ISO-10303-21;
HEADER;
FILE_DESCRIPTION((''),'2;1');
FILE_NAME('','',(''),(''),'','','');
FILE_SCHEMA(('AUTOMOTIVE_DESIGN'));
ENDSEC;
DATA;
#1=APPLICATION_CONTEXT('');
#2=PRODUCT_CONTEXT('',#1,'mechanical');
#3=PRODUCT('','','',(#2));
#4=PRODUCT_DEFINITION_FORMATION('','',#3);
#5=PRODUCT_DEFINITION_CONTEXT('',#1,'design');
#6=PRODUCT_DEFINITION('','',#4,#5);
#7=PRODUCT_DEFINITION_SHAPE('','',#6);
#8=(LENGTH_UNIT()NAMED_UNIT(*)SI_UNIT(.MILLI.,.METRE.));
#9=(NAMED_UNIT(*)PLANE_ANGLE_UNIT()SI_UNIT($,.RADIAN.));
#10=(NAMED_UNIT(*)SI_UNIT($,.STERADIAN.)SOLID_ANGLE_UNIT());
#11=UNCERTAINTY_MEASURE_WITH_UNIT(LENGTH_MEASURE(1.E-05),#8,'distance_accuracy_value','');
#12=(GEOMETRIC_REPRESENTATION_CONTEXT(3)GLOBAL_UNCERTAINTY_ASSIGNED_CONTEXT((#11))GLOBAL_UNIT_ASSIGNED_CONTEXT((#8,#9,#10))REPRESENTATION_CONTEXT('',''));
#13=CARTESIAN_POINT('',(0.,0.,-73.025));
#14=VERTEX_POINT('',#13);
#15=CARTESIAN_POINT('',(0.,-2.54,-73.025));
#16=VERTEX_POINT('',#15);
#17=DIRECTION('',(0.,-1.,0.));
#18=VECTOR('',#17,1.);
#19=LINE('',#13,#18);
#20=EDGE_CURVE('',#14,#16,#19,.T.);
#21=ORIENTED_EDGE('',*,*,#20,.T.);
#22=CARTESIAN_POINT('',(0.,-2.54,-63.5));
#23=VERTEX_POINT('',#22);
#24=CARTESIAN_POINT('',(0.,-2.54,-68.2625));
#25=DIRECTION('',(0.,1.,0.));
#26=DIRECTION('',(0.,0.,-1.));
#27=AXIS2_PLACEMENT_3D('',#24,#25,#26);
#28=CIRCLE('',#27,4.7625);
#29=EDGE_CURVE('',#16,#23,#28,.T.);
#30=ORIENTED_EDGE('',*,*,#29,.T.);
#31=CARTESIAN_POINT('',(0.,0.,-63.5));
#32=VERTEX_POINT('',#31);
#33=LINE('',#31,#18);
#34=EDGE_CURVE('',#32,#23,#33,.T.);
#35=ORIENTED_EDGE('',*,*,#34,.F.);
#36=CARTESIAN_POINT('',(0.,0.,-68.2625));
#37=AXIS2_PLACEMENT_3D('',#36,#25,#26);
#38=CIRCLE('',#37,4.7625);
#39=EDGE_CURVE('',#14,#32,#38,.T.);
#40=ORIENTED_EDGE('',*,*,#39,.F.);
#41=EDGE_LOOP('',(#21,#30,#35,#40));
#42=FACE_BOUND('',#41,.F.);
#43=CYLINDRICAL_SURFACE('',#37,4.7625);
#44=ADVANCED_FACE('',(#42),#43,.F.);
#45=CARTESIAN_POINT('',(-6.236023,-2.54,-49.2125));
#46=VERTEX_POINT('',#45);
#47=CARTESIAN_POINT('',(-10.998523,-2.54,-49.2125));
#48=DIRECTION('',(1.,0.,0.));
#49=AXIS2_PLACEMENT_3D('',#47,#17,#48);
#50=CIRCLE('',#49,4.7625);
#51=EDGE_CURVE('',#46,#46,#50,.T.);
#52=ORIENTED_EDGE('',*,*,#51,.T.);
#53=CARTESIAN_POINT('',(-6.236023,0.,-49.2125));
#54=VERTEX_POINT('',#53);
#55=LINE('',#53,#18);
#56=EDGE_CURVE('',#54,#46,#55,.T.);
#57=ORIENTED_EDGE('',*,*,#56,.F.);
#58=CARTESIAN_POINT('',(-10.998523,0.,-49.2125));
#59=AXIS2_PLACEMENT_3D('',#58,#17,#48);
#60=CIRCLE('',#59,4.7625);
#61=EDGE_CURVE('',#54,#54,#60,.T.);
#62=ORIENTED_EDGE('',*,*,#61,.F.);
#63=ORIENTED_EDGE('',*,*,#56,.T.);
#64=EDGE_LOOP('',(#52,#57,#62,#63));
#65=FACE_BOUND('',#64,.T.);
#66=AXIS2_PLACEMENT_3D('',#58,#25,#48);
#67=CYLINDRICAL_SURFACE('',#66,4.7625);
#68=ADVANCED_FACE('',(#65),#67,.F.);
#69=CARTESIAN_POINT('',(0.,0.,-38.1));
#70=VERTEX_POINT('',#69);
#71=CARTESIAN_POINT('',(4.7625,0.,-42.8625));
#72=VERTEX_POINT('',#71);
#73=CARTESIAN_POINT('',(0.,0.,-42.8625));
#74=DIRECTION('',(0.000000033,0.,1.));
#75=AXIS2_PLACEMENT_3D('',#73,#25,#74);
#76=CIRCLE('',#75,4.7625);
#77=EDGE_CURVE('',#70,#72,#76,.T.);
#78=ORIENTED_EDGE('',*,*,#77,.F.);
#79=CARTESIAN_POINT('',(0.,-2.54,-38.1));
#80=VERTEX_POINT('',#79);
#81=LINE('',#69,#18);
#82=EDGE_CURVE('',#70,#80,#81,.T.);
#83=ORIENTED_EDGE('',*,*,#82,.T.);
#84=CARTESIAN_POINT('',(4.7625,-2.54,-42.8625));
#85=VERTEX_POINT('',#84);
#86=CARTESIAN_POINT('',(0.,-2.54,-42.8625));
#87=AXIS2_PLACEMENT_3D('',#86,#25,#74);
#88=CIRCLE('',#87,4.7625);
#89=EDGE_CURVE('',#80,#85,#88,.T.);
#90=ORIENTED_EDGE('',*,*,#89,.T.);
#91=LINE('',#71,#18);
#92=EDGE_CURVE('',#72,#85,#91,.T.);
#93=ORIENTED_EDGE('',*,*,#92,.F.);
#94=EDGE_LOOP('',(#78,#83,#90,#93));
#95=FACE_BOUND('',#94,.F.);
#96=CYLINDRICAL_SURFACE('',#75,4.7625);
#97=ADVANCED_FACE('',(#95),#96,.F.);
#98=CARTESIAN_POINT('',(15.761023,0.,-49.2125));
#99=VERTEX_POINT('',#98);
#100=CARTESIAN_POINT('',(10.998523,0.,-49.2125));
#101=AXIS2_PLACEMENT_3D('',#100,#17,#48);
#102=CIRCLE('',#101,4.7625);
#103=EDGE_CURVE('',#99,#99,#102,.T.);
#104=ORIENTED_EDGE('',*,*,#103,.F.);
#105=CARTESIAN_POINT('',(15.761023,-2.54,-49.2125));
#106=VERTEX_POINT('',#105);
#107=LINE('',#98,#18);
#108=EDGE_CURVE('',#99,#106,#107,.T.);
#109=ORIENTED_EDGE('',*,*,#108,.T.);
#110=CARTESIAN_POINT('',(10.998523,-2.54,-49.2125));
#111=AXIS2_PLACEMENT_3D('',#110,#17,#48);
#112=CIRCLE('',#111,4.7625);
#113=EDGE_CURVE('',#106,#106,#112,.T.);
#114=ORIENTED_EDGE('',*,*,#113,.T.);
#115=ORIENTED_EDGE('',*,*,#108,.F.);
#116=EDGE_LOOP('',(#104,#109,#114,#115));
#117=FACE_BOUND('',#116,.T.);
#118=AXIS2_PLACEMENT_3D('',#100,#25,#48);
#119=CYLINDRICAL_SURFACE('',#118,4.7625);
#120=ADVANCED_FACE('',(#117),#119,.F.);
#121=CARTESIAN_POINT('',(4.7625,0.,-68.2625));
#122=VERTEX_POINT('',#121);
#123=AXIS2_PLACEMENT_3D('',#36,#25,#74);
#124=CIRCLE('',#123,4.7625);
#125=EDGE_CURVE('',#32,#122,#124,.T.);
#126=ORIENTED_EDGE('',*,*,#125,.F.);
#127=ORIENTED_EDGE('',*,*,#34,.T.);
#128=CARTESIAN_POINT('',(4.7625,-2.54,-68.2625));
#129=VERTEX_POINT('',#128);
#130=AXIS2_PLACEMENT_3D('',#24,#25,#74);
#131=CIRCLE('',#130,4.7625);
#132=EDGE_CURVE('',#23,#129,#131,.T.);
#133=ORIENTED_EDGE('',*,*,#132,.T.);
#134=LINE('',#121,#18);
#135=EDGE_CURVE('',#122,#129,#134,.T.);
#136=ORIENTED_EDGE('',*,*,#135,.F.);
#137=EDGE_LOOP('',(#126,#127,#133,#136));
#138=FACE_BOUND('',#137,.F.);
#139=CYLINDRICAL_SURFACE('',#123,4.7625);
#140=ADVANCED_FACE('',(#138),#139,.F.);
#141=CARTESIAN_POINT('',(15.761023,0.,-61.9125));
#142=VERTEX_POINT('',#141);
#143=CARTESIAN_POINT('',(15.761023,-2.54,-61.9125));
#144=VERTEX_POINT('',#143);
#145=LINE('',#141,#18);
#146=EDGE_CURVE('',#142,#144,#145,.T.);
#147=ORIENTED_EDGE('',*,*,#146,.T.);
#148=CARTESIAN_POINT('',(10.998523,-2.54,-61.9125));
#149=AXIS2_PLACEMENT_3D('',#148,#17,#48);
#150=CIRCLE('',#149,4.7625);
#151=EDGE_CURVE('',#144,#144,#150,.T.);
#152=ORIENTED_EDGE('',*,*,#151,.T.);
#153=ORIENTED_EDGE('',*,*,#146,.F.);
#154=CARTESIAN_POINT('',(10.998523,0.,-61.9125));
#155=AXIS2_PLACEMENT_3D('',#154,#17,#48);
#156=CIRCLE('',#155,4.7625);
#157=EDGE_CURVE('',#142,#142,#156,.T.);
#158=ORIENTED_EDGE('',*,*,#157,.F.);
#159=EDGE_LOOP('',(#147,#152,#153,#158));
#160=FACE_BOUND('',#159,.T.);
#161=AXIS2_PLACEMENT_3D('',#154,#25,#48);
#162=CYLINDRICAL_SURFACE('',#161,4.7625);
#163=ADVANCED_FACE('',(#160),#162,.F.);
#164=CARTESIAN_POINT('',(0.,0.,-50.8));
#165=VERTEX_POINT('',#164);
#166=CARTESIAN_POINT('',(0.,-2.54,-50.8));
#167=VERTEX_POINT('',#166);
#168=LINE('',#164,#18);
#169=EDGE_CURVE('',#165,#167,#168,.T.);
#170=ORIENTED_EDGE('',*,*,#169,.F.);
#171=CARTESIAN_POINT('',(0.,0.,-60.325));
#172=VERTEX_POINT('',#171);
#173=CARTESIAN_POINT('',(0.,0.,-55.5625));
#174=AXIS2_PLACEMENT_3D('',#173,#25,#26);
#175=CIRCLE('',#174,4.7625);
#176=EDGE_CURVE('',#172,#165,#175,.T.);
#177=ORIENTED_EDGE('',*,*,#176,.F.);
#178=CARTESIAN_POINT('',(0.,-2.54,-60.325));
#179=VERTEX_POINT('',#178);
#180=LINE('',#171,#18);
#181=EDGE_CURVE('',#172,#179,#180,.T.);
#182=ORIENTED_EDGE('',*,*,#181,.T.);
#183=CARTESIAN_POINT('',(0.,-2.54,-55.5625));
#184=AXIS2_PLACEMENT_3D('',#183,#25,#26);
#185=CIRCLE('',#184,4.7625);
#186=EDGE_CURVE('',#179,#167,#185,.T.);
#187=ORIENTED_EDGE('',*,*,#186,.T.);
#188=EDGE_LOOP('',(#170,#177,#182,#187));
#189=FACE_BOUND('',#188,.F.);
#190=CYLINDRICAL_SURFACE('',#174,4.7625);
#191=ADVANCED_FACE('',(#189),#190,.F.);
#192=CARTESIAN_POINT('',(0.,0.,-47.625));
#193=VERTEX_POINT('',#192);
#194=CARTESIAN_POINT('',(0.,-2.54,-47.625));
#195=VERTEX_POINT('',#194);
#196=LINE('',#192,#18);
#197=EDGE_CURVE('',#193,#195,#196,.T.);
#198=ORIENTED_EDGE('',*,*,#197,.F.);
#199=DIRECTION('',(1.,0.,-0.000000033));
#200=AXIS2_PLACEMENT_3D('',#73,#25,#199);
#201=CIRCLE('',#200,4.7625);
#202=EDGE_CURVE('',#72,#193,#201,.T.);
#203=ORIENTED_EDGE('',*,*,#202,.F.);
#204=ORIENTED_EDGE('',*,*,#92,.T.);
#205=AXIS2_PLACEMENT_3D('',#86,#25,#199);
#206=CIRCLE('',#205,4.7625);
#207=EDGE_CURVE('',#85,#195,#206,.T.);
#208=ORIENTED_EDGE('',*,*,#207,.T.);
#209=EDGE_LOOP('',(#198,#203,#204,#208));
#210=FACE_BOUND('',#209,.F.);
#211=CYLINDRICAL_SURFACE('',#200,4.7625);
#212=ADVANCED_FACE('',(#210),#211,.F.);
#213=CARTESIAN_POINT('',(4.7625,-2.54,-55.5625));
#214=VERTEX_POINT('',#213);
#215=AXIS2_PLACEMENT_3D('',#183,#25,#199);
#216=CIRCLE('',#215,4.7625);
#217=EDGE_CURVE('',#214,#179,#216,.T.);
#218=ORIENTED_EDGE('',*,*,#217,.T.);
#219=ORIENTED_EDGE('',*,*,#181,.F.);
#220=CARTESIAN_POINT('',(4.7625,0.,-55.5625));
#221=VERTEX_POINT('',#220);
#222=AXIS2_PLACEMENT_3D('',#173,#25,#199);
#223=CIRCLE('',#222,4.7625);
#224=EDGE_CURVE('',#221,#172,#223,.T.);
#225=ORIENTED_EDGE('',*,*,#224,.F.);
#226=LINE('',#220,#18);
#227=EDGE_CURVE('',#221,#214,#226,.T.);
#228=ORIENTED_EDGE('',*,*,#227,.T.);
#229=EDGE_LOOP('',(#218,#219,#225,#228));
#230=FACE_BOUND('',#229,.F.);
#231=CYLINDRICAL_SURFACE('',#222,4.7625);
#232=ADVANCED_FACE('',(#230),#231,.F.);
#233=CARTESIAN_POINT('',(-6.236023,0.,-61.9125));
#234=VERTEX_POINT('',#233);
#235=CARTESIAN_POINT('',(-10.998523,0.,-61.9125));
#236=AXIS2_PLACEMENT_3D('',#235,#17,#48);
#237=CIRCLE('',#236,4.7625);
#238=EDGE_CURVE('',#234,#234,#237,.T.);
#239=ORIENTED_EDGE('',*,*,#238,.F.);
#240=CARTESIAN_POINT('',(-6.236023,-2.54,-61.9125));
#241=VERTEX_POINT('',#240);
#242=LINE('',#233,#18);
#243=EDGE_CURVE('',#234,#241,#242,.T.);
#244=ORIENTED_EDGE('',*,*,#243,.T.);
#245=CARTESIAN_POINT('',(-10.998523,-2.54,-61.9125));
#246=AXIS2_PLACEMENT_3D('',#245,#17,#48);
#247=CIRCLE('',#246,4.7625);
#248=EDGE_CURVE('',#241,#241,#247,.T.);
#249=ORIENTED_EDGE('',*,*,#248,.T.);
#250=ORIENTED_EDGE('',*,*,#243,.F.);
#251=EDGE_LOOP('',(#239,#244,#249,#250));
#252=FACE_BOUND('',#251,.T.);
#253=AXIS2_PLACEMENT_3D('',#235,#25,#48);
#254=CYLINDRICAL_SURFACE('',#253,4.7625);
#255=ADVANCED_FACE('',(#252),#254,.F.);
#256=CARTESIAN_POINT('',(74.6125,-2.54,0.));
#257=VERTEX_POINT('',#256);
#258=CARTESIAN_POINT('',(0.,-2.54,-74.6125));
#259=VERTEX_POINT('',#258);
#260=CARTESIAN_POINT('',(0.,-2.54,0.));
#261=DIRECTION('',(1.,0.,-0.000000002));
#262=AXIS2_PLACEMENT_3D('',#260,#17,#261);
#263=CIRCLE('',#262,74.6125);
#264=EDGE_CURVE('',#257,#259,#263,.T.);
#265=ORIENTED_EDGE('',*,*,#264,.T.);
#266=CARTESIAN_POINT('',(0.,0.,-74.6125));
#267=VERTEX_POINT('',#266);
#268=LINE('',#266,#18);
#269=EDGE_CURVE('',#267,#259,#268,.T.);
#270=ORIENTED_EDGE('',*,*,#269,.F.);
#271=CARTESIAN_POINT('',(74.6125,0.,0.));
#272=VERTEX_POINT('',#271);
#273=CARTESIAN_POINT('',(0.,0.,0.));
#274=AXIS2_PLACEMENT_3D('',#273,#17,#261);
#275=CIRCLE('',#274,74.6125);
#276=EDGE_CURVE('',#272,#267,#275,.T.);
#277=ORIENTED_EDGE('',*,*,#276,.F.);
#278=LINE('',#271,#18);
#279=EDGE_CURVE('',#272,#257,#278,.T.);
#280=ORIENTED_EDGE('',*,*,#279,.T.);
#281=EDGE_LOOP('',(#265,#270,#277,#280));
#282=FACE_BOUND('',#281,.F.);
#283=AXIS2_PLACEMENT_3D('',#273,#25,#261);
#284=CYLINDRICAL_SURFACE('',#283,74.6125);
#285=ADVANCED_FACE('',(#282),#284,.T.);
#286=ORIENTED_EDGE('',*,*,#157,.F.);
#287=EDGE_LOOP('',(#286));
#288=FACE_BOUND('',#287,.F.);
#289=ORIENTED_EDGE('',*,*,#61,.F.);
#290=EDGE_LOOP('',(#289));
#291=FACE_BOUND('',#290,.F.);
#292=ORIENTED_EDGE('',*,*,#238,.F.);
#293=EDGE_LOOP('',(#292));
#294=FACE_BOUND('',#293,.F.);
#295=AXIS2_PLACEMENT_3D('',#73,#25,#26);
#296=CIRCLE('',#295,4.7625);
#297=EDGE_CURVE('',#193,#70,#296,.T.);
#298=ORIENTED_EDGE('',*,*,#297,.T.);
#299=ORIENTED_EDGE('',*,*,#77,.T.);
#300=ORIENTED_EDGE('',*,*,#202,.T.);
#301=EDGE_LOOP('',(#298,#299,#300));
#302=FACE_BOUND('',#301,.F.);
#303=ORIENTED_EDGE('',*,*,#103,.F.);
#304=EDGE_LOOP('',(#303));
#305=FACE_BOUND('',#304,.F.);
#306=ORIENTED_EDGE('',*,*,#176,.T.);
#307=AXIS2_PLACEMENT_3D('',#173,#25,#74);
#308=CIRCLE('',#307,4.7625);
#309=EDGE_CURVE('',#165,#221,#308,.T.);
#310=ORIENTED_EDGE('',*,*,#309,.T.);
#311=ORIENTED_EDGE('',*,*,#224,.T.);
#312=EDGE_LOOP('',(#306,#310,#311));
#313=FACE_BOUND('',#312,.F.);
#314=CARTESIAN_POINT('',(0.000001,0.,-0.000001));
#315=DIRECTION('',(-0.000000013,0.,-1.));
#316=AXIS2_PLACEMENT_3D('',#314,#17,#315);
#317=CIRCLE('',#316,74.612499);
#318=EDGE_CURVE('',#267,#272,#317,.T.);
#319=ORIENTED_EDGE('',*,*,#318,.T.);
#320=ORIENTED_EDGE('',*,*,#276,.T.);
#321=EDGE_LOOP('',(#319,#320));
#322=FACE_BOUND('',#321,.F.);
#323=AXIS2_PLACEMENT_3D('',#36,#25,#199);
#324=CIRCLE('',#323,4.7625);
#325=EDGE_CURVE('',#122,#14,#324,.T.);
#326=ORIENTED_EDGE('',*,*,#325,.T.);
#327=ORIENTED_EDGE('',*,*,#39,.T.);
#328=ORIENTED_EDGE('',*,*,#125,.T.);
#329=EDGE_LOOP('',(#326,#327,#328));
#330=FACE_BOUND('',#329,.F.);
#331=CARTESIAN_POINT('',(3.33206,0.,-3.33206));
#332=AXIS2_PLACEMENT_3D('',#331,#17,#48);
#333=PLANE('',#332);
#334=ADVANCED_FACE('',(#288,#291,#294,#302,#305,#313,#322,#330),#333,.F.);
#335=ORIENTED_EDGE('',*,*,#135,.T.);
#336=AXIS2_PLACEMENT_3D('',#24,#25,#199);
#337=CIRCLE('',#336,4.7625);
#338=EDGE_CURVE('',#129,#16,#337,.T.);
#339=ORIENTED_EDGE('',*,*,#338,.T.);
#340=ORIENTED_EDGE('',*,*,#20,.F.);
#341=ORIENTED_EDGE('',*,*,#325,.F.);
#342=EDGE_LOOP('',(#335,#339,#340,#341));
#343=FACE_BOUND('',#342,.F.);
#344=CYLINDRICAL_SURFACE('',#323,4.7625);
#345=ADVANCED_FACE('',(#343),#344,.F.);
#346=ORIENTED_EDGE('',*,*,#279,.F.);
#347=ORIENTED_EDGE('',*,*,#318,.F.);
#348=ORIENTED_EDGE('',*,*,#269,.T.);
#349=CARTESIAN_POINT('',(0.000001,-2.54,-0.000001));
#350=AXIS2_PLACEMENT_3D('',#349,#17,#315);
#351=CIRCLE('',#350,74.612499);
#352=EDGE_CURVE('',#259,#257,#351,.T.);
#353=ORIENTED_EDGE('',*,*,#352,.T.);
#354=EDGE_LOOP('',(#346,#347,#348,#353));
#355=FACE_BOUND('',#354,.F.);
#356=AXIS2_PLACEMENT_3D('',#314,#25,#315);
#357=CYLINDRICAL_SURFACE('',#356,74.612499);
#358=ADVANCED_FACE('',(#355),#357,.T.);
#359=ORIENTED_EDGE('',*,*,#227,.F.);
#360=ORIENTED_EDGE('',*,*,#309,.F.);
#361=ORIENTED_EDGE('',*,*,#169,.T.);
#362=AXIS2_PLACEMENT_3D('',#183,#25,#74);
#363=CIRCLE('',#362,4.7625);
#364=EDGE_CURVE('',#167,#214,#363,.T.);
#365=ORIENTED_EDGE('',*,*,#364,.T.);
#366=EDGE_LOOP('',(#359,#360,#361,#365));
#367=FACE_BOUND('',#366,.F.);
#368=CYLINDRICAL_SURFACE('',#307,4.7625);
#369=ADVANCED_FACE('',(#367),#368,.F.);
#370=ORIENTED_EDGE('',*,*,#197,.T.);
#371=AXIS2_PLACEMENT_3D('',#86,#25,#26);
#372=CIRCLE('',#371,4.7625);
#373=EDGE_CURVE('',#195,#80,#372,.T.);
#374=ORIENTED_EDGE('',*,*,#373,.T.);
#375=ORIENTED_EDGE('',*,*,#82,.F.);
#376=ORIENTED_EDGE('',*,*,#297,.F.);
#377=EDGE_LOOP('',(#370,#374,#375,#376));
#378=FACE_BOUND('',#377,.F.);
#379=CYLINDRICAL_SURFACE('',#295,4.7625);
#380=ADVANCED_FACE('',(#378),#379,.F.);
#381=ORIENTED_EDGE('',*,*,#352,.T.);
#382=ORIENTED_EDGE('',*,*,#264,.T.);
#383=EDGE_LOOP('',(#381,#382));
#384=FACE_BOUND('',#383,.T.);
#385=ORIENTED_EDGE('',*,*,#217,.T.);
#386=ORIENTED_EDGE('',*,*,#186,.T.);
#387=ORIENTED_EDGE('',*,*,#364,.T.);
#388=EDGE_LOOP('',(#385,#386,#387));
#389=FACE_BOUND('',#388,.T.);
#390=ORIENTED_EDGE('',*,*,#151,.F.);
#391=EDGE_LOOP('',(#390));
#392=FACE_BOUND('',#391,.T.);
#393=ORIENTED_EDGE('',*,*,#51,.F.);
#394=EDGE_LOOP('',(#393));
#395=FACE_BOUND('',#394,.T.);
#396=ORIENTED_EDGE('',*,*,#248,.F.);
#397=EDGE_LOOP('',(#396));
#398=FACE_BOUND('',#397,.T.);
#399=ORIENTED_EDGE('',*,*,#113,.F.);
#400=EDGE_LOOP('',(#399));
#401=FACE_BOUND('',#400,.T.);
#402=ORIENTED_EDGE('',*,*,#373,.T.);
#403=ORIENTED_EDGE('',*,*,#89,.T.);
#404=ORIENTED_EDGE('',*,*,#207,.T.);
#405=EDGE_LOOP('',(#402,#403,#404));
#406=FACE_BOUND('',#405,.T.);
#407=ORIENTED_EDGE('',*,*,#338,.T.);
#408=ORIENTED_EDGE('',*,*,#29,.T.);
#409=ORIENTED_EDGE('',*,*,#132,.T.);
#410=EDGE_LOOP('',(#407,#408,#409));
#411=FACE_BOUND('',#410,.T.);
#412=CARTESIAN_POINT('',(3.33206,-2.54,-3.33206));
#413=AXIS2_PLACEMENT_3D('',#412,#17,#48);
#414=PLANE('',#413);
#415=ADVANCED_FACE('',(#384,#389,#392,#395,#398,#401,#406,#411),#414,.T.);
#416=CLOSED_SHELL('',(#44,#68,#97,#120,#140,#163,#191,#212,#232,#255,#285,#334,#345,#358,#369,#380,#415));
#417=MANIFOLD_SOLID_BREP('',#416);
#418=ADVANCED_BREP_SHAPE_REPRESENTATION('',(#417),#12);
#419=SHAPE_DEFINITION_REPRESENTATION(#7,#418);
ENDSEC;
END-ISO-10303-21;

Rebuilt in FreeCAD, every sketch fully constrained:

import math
import FreeCAD as App
import Part
import Sketcher
Q = App.Units.Quantity

doc = App.newDocument("Part")
body = doc.addObject("PartDesign::Body", "Body")

# Sketch on XZ plane
sketch1 = body.newObject("Sketcher::SketchObject", "Sketch")
sketch1.AttachmentSupport = (doc.getObject("XZ_Plane"), [""])
sketch1.MapMode = "FlatFace"
sketch1.addGeometry([
    Part.ArcOfCircle(Part.Circle(App.Vector(0, 0, 0), App.Vector(0, 0, 1), 74.6), math.radians(-90), math.radians(0)),  # 0
    Part.ArcOfCircle(Part.Circle(App.Vector(0, 0, 0), App.Vector(0, 0, 1), 74.6), math.radians(0), math.radians(270)),  # 1
    Part.Circle(App.Vector(-11, -61.9, 0), App.Vector(0, 0, 1), 4.8),  # 2
    Part.ArcOfCircle(Part.Circle(App.Vector(0, -68.3, 0), App.Vector(0, 0, 1), 4.8), math.radians(0), math.radians(90)),  # 3
    Part.ArcOfCircle(Part.Circle(App.Vector(0, -68.3, 0), App.Vector(0, 0, 1), 4.8), math.radians(-90), math.radians(0)),  # 4
    Part.ArcOfCircle(Part.Circle(App.Vector(0, -68.3, 0), App.Vector(0, 0, 1), 4.8), math.radians(90), math.radians(270)),  # 5
    Part.Circle(App.Vector(11, -61.9, 0), App.Vector(0, 0, 1), 4.8),  # 6
    Part.Circle(App.Vector(-11, -49.2, 0), App.Vector(0, 0, 1), 4.8),  # 7
    Part.ArcOfCircle(Part.Circle(App.Vector(0, -55.6, 0), App.Vector(0, 0, 1), 4.8), math.radians(0), math.radians(90)),  # 8
    Part.ArcOfCircle(Part.Circle(App.Vector(0, -55.6, 0), App.Vector(0, 0, 1), 4.8), math.radians(-90), math.radians(0)),  # 9
    Part.ArcOfCircle(Part.Circle(App.Vector(0, -55.6, 0), App.Vector(0, 0, 1), 4.8), math.radians(90), math.radians(270)),  # 10
    Part.Circle(App.Vector(11, -49.2, 0), App.Vector(0, 0, 1), 4.8),  # 11
    Part.ArcOfCircle(Part.Circle(App.Vector(0, -42.9, 0), App.Vector(0, 0, 1), 4.8), math.radians(0), math.radians(90)),  # 12
    Part.ArcOfCircle(Part.Circle(App.Vector(0, -42.9, 0), App.Vector(0, 0, 1), 4.8), math.radians(-90), math.radians(0)),  # 13
    Part.ArcOfCircle(Part.Circle(App.Vector(0, -42.9, 0), App.Vector(0, 0, 1), 4.8), math.radians(90), math.radians(270)),  # 14
], False)
sketch1.addConstraint([
    Sketcher.Constraint("Tangent", 0, 1, 1, 2),
    Sketcher.Constraint("Coincident", 1, 1, 0, 2),
    Sketcher.Constraint("Tangent", 3, 1, 4, 2),
    Sketcher.Constraint("Tangent", 4, 1, 5, 2),
    Sketcher.Constraint("Tangent", 5, 1, 3, 2),
    Sketcher.Constraint("Tangent", 8, 1, 9, 2),
    Sketcher.Constraint("Tangent", 9, 1, 10, 2),
    Sketcher.Constraint("Tangent", 10, 1, 8, 2),
    Sketcher.Constraint("Tangent", 12, 1, 13, 2),
    Sketcher.Constraint("Tangent", 13, 1, 14, 2),
    Sketcher.Constraint("Tangent", 14, 1, 12, 2),
    Sketcher.Constraint("Coincident", 0, 3, -1, 1),
    Sketcher.Constraint("Equal", 2, 3),
    Sketcher.Constraint("Equal", 5, 6),
    Sketcher.Constraint("Equal", 6, 7),
    Sketcher.Constraint("Equal", 7, 8),
    Sketcher.Constraint("Equal", 10, 11),
    Sketcher.Constraint("Equal", 11, 12),
    Sketcher.Constraint("Symmetric", 2, 3, 6, 3, -2),
    Sketcher.Constraint("Symmetric", 7, 3, 11, 3, -2),
    Sketcher.Constraint("PointOnObject", 3, 3, -2),
    Sketcher.Constraint("PointOnObject", 8, 3, -2),
    Sketcher.Constraint("PointOnObject", 12, 3, -2),
    Sketcher.Constraint("PointOnObject", 0, 1, -2),
    Sketcher.Constraint("PointOnObject", 1, 1, -1),
    Sketcher.Constraint("PointOnObject", 4, 1, -2),
    Sketcher.Constraint("PointOnObject", 5, 1, -2),
    Sketcher.Constraint("PointOnObject", 9, 1, -2),
    Sketcher.Constraint("PointOnObject", 10, 1, -2),
    Sketcher.Constraint("PointOnObject", 13, 1, -2),
    Sketcher.Constraint("PointOnObject", 14, 1, -2),
    Sketcher.Constraint("Horizontal", 5, 3, 3, 1),
    Sketcher.Constraint("Horizontal", 10, 3, 8, 1),
    Sketcher.Constraint("Horizontal", 14, 3, 12, 1),
    Sketcher.Constraint("Vertical", 2, 3, 7, 3),
    Sketcher.Constraint("Diameter", 2, Q("0.375 in")),
    Sketcher.Constraint("DistanceY", 10, 1, -1, 1, Q("2 in")),
    Sketcher.Constraint("Radius", 0, Q("2.9375 in")),
    Sketcher.Constraint("DistanceY", 5, 1, -1, 1, Q("2.5 in")),
    Sketcher.Constraint("DistanceY", 14, 1, -1, 1, Q("1.5 in")),
    Sketcher.Constraint("DistanceY", 2, 3, 7, 3, Q("0.5 in")),
    Sketcher.Constraint("DistanceY", 0, 1, 6, 3, Q("0.5 in")),
    Sketcher.Constraint("DistanceX", 2, 3, -1, 1, 10.998523),
])
pad1 = body.newObject("PartDesign::Pad", "Pad")
pad1.Profile = sketch1
pad1.Length = Q("0.1 in")

doc.recompute()
